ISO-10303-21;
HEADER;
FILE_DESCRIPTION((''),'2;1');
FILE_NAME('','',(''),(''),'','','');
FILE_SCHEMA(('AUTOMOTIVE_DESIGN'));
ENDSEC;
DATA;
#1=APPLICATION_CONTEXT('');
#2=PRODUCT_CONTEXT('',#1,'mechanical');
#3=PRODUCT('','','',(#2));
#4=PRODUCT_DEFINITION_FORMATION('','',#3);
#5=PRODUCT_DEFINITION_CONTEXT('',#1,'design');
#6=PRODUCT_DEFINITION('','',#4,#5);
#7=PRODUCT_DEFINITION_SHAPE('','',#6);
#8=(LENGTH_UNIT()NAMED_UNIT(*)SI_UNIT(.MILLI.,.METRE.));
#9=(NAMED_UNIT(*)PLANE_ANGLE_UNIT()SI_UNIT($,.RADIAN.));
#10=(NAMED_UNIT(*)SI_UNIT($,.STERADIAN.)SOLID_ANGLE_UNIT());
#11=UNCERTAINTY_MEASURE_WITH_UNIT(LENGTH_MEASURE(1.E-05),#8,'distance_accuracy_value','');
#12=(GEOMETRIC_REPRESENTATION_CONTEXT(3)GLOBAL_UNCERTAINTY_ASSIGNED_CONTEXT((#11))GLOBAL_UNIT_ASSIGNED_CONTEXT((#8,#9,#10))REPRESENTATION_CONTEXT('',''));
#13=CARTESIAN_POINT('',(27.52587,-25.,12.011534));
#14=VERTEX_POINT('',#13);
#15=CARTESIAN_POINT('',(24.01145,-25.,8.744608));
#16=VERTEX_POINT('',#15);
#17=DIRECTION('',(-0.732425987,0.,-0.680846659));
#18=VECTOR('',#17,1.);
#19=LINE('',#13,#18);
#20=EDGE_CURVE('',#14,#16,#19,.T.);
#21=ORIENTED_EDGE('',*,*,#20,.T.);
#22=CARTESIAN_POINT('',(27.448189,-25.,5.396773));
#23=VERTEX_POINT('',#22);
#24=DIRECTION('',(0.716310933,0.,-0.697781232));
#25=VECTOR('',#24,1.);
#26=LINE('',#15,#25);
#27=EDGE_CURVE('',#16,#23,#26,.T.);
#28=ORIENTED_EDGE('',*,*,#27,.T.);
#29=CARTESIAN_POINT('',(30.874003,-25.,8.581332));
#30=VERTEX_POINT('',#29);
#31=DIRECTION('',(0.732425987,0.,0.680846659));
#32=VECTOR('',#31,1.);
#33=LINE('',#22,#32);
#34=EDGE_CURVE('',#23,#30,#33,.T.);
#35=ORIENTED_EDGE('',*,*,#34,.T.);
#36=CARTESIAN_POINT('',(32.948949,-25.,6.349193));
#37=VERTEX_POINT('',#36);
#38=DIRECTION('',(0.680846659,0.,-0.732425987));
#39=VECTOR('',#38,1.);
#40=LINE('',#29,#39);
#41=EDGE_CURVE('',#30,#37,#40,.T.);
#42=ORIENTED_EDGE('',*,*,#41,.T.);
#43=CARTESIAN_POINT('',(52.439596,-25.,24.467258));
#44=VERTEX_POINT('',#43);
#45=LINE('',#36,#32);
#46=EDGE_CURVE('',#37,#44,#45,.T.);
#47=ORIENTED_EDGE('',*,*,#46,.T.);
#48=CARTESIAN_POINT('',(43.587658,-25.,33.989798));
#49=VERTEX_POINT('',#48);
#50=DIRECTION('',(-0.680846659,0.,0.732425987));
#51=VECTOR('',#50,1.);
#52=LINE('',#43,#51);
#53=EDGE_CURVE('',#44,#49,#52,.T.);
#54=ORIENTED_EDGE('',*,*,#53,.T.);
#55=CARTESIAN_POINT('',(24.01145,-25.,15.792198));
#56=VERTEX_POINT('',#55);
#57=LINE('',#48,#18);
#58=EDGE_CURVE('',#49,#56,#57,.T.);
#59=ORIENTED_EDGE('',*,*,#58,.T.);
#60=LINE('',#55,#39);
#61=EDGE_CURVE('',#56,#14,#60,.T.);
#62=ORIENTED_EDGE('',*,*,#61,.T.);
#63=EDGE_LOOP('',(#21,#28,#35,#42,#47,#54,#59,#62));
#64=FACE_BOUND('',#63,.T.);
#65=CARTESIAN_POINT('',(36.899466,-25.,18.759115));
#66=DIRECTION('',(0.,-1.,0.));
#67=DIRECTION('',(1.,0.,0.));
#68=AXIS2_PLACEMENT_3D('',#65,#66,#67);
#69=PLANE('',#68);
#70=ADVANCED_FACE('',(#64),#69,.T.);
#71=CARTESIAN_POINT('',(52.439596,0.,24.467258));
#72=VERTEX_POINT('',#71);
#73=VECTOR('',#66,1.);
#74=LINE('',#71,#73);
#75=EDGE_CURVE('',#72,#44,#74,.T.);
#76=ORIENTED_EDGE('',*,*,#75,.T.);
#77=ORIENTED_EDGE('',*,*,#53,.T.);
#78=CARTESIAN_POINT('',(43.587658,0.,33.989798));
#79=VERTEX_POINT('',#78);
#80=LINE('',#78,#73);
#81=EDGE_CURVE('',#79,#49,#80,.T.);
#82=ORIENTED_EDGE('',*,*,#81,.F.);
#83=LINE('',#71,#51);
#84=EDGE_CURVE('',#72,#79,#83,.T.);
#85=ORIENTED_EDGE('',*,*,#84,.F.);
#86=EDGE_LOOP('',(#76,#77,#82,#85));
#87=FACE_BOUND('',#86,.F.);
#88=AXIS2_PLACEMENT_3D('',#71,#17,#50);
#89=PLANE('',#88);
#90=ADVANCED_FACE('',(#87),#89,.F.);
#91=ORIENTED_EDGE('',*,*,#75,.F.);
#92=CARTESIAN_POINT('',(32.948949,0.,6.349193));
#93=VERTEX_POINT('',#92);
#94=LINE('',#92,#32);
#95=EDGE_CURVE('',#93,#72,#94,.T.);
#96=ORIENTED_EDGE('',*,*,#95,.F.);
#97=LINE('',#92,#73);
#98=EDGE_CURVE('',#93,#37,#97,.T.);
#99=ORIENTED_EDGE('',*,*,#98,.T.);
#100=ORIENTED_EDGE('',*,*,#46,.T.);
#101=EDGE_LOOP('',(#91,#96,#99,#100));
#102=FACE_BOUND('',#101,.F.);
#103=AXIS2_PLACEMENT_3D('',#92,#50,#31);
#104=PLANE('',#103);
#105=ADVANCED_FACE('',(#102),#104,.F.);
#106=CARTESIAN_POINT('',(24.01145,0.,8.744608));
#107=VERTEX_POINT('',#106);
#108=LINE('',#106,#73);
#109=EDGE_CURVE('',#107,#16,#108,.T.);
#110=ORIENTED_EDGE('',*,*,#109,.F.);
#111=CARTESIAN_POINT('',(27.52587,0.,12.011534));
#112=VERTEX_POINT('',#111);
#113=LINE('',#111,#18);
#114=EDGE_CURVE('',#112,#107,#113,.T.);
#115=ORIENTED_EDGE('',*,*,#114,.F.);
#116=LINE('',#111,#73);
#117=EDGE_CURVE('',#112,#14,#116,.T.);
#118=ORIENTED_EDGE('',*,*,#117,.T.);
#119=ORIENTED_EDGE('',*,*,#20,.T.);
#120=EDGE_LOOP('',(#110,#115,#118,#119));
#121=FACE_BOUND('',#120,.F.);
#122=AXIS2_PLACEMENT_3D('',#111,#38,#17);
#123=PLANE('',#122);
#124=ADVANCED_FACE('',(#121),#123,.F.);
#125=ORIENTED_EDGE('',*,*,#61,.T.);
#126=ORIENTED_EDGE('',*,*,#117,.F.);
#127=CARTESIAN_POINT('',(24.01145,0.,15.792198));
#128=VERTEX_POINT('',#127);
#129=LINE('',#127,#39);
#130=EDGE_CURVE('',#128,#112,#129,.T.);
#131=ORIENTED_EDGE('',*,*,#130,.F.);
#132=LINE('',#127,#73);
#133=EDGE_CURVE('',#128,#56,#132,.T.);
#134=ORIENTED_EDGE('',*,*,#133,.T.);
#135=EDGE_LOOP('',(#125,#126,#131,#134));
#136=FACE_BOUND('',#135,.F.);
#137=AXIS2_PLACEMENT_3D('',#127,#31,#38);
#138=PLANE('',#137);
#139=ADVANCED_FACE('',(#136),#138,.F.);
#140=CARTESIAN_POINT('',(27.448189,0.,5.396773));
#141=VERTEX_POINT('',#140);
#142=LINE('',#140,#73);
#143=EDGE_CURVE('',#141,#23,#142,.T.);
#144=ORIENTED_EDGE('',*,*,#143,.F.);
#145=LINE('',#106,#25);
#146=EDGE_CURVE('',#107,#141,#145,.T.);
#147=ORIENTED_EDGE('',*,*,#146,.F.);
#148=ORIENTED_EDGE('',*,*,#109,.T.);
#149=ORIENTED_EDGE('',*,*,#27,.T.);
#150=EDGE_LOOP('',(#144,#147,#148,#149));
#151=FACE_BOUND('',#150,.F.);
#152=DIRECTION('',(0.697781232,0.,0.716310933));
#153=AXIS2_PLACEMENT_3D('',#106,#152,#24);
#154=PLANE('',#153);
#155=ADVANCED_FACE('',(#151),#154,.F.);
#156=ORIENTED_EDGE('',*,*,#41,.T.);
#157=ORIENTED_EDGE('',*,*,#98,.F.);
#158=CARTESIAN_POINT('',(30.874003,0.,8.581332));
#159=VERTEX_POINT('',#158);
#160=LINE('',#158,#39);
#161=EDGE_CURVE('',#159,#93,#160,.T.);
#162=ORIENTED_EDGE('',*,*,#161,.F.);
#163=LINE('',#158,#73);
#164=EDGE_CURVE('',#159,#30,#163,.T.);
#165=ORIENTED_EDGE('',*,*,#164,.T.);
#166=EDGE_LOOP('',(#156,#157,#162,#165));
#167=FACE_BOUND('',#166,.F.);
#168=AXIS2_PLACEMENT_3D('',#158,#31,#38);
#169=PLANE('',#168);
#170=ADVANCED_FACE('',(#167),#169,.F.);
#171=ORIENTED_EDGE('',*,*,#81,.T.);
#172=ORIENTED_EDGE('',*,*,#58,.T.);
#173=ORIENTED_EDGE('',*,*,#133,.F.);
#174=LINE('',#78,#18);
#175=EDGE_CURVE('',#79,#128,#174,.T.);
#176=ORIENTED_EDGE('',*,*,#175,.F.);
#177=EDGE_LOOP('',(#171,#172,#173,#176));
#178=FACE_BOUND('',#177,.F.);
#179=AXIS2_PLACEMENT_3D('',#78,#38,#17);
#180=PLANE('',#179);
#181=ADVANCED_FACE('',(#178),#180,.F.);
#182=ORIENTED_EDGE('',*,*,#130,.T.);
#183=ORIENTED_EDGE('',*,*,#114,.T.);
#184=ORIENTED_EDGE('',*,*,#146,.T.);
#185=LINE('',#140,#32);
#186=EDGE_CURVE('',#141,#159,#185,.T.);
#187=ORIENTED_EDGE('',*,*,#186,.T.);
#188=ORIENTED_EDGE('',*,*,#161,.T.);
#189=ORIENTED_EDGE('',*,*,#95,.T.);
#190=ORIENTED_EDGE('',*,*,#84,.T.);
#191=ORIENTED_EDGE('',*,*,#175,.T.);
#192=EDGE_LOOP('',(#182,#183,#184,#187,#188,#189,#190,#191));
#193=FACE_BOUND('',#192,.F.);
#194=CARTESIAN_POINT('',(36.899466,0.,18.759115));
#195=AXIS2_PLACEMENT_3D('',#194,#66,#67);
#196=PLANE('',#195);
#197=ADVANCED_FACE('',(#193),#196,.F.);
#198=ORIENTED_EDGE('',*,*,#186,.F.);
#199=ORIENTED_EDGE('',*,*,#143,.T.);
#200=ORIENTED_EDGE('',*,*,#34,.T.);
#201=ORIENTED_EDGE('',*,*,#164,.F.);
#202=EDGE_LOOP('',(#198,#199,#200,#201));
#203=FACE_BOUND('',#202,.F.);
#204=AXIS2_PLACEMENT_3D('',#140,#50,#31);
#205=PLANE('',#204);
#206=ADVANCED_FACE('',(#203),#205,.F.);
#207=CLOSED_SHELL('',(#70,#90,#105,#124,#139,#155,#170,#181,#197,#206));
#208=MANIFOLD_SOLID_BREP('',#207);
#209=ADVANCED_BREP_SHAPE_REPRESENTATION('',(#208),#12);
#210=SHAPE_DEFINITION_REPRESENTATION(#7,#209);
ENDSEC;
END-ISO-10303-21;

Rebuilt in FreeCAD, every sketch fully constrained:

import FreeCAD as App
import Part
import Sketcher
from FreeCAD import Vector

doc = App.newDocument("Part")
params = doc.addObject("Spreadsheet::Sheet", "Params")
for row, (alias, value) in enumerate([
    ("pad1_length", "25 mm"),
    ("pad2_length", "25 mm"),
], start=1):
    params.set(f"A{row}", alias)
    params.set(f"B{row}", "=" + value)
    params.setAlias(f"B{row}", alias)

body = doc.addObject("PartDesign::Body", "Body")

sketch1 = body.newObject("Sketcher::SketchObject", "Sketch")
sketch1.AttachmentSupport = (doc.getObject("XZ_Plane"), [""])
sketch1.MapMode = "FlatFace"
sketch1.addGeometry([
    Part.LineSegment(Vector(20.5, 5.7, 0), Vector(20.5, -6.6, 0)),
    Part.LineSegment(Vector(20.5, -6.6, 0), Vector(24.7, -6.6, 0)),
    Part.LineSegment(Vector(24.7, -6.6, 0), Vector(24.7, 5.7, 0)),
    Part.LineSegment(Vector(24.7, 5.7, 0), Vector(20.5, 5.7, 0)),
], False)
sketch1.addConstraint([
    Sketcher.Constraint("Coincident", 0, 2, 1, 1),
    Sketcher.Constraint("Coincident", 1, 2, 2, 1),
    Sketcher.Constraint("Coincident", 2, 2, 3, 1),
    Sketcher.Constraint("Coincident", 3, 2, 0, 1),
    Sketcher.Constraint("Vertical", 0),
    Sketcher.Constraint("Horizontal", 1),
    Sketcher.Constraint("Vertical", 2),
    Sketcher.Constraint("Horizontal", 3),
    Sketcher.Constraint("DistanceX", 1, 1, 1, 2, 4.202452),
    Sketcher.Constraint("DistanceY", 0, 2, 0, 1, 12.322639),
    Sketcher.Constraint("DistanceY", 0, 2, -1, 1, 6.636391),
    Sketcher.Constraint("DistanceX", -1, 1, 0, 2, 20.540595),
])
pad1 = body.newObject("PartDesign::Pad", "Pad")
pad1.Profile = sketch1
pad1.setExpression("Length", "Params.pad1_length")
body2 = doc.addObject("PartDesign::Body", "Body001")

sketch2 = body2.newObject("Sketcher::SketchObject", "Sketch001")
sketch2.AttachmentSupport = (doc.getObject("XZ_Plane001"), [""])
sketch2.MapMode = "FlatFace"
sketch2.addGeometry([
    Part.LineSegment(Vector(52.4, 24.5, 0), Vector(43.6, 34, 0)),
    Part.LineSegment(Vector(43.6, 34, 0), Vector(24, 15.8, 0)),
    Part.LineSegment(Vector(24, 15.8, 0), Vector(27.5, 12, 0)),
    Part.LineSegment(Vector(27.5, 12, 0), Vector(24, 8.7, 0)),
    Part.LineSegment(Vector(24, 8.7, 0), Vector(27.4, 5.4, 0)),
    Part.LineSegment(Vector(27.4, 5.4, 0), Vector(30.9, 8.6, 0)),
    Part.LineSegment(Vector(30.9, 8.6, 0), Vector(32.9, 6.3, 0)),
    Part.LineSegment(Vector(32.9, 6.3, 0), Vector(52.4, 24.5, 0)),
], False)
sketch2.addConstraint([
    Sketcher.Constraint("Coincident", 0, 2, 1, 1),
    Sketcher.Constraint("Coincident", 1, 2, 2, 1),
    Sketcher.Constraint("Coincident", 2, 2, 3, 1),
    Sketcher.Constraint("Coincident", 3, 2, 4, 1),
    Sketcher.Constraint("Coincident", 4, 2, 5, 1),
    Sketcher.Constraint("Coincident", 5, 2, 6, 1),
    Sketcher.Constraint("Coincident", 6, 2, 7, 1),
    Sketcher.Constraint("Coincident", 7, 2, 0, 1),
    Sketcher.Constraint("Perpendicular", 0, 1),
    Sketcher.Constraint("Perpendicular", 1, 2),
    Sketcher.Constraint("Perpendicular", 2, 3),
    Sketcher.Constraint("Parallel", 3, 5),
    Sketcher.Constraint("Perpendicular", 5, 6),
    Sketcher.Constraint("Perpendicular", 6, 7),
    Sketcher.Constraint("Vertical", 1, 2, 3, 2),
    Sketcher.Constraint("Distance", 1, 26.727898),
    Sketcher.Constraint("DistanceY", 1, 2, 0, 2, 18.1976),
    Sketcher.Constraint("DistanceY", 5, 2, 2, 2, 3.430202),
    Sketcher.Constraint("DistanceX", 3, 2, 6, 2, 8.937498),
    Sketcher.Constraint("Distance", 0, 13.001368),
    Sketcher.Constraint("Distance", 4, 4.79783),
    Sketcher.Constraint("Distance", 5, 4.677352),
    Sketcher.Constraint("DistanceX", -1, 1, 1, 2, 24.01145),
    Sketcher.Constraint("DistanceY", -1, 1, 3, 2, 8.744608),
])
pad2 = body2.newObject("PartDesign::Pad", "Pad001")
pad2.Profile = sketch2
pad2.setExpression("Length", "Params.pad2_length")
body.Visibility = False

doc.recompute()
